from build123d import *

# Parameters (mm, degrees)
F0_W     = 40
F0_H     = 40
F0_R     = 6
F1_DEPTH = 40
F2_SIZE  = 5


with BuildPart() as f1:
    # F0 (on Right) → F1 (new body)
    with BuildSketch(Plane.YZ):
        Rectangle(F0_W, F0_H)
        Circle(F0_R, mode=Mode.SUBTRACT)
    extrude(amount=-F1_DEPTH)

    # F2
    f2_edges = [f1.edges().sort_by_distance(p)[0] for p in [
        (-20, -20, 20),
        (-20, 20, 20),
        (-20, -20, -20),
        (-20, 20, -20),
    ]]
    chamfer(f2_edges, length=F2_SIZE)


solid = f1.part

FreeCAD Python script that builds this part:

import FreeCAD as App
import Part
import Sketcher
from FreeCAD import Vector
Q = App.Units.Quantity


def edges_at(feature, points):
    """Names of the edges that pass closest to the given points."""
    edges = feature.Shape.Edges
    near = lambda p: min(range(len(edges)), key=lambda i: edges[i].distToShape(Part.Vertex(*p))[0])
    return sorted({f"Edge{near(p) + 1}" for p in points})


def add_polygon(sketch, points):
    """Adds a closed chain of lines whose ends are joined by coincident constraints."""
    first, n = sketch.GeometryCount, len(points)
    for a, b in zip(points, points[1:] + points[:1]):
        sketch.addGeometry(Part.LineSegment(App.Vector(*a, 0), App.Vector(*b, 0)), False)
    for i in range(n):
        sketch.addConstraint(Sketcher.Constraint("Coincident", first + i, 2, first + (i + 1) % n, 1))

doc = App.newDocument("Part")
body = doc.addObject("PartDesign::Body", "Body")

# Sketch on YZ plane
sketch1 = body.newObject("Sketcher::SketchObject", "Sketch")
sketch1.AttachmentSupport = (doc.getObject("YZ_Plane"), [""])
sketch1.MapMode = "FlatFace"
add_polygon(sketch1, [(-20, 20), (-20, -20), (20, -20), (20, 20)])  # lines 0-3
sketch1.addGeometry(Part.Circle(Vector(0, 0, 0), Vector(0, 0, 1), 6), False)  # 4
sketch1.addConstraint([
    Sketcher.Constraint("Vertical", 0),
    Sketcher.Constraint("Horizontal", 1),
    Sketcher.Constraint("Vertical", 2),
    Sketcher.Constraint("Horizontal", 3),
    Sketcher.Constraint("Coincident", 4, 3, -1, 1),
    Sketcher.Constraint("Symmetric", 0, 2, 2, 2, -1, 1),
    Sketcher.Constraint("Equal", 3, 0),
    Sketcher.Constraint("Diameter", 4, Q("12 mm")),
    Sketcher.Constraint("DistanceX", 1, 1, 1, 2, Q("40 mm")),
])
pad1 = body.newObject("PartDesign::Pad", "Pad")
pad1.Profile = sketch1
pad1.Length = 40
pad1.Reversed = True
doc.recompute()

chamfer = body.newObject("PartDesign::Chamfer", "Chamfer")
chamfer.Base = (pad1, edges_at(pad1, [
    (-20, -20, 20),
    (-20, 20, 20),
    (-20, -20, -20),
    (-20, 20, -20),
]))
chamfer.Size = 5

doc.recompute()
